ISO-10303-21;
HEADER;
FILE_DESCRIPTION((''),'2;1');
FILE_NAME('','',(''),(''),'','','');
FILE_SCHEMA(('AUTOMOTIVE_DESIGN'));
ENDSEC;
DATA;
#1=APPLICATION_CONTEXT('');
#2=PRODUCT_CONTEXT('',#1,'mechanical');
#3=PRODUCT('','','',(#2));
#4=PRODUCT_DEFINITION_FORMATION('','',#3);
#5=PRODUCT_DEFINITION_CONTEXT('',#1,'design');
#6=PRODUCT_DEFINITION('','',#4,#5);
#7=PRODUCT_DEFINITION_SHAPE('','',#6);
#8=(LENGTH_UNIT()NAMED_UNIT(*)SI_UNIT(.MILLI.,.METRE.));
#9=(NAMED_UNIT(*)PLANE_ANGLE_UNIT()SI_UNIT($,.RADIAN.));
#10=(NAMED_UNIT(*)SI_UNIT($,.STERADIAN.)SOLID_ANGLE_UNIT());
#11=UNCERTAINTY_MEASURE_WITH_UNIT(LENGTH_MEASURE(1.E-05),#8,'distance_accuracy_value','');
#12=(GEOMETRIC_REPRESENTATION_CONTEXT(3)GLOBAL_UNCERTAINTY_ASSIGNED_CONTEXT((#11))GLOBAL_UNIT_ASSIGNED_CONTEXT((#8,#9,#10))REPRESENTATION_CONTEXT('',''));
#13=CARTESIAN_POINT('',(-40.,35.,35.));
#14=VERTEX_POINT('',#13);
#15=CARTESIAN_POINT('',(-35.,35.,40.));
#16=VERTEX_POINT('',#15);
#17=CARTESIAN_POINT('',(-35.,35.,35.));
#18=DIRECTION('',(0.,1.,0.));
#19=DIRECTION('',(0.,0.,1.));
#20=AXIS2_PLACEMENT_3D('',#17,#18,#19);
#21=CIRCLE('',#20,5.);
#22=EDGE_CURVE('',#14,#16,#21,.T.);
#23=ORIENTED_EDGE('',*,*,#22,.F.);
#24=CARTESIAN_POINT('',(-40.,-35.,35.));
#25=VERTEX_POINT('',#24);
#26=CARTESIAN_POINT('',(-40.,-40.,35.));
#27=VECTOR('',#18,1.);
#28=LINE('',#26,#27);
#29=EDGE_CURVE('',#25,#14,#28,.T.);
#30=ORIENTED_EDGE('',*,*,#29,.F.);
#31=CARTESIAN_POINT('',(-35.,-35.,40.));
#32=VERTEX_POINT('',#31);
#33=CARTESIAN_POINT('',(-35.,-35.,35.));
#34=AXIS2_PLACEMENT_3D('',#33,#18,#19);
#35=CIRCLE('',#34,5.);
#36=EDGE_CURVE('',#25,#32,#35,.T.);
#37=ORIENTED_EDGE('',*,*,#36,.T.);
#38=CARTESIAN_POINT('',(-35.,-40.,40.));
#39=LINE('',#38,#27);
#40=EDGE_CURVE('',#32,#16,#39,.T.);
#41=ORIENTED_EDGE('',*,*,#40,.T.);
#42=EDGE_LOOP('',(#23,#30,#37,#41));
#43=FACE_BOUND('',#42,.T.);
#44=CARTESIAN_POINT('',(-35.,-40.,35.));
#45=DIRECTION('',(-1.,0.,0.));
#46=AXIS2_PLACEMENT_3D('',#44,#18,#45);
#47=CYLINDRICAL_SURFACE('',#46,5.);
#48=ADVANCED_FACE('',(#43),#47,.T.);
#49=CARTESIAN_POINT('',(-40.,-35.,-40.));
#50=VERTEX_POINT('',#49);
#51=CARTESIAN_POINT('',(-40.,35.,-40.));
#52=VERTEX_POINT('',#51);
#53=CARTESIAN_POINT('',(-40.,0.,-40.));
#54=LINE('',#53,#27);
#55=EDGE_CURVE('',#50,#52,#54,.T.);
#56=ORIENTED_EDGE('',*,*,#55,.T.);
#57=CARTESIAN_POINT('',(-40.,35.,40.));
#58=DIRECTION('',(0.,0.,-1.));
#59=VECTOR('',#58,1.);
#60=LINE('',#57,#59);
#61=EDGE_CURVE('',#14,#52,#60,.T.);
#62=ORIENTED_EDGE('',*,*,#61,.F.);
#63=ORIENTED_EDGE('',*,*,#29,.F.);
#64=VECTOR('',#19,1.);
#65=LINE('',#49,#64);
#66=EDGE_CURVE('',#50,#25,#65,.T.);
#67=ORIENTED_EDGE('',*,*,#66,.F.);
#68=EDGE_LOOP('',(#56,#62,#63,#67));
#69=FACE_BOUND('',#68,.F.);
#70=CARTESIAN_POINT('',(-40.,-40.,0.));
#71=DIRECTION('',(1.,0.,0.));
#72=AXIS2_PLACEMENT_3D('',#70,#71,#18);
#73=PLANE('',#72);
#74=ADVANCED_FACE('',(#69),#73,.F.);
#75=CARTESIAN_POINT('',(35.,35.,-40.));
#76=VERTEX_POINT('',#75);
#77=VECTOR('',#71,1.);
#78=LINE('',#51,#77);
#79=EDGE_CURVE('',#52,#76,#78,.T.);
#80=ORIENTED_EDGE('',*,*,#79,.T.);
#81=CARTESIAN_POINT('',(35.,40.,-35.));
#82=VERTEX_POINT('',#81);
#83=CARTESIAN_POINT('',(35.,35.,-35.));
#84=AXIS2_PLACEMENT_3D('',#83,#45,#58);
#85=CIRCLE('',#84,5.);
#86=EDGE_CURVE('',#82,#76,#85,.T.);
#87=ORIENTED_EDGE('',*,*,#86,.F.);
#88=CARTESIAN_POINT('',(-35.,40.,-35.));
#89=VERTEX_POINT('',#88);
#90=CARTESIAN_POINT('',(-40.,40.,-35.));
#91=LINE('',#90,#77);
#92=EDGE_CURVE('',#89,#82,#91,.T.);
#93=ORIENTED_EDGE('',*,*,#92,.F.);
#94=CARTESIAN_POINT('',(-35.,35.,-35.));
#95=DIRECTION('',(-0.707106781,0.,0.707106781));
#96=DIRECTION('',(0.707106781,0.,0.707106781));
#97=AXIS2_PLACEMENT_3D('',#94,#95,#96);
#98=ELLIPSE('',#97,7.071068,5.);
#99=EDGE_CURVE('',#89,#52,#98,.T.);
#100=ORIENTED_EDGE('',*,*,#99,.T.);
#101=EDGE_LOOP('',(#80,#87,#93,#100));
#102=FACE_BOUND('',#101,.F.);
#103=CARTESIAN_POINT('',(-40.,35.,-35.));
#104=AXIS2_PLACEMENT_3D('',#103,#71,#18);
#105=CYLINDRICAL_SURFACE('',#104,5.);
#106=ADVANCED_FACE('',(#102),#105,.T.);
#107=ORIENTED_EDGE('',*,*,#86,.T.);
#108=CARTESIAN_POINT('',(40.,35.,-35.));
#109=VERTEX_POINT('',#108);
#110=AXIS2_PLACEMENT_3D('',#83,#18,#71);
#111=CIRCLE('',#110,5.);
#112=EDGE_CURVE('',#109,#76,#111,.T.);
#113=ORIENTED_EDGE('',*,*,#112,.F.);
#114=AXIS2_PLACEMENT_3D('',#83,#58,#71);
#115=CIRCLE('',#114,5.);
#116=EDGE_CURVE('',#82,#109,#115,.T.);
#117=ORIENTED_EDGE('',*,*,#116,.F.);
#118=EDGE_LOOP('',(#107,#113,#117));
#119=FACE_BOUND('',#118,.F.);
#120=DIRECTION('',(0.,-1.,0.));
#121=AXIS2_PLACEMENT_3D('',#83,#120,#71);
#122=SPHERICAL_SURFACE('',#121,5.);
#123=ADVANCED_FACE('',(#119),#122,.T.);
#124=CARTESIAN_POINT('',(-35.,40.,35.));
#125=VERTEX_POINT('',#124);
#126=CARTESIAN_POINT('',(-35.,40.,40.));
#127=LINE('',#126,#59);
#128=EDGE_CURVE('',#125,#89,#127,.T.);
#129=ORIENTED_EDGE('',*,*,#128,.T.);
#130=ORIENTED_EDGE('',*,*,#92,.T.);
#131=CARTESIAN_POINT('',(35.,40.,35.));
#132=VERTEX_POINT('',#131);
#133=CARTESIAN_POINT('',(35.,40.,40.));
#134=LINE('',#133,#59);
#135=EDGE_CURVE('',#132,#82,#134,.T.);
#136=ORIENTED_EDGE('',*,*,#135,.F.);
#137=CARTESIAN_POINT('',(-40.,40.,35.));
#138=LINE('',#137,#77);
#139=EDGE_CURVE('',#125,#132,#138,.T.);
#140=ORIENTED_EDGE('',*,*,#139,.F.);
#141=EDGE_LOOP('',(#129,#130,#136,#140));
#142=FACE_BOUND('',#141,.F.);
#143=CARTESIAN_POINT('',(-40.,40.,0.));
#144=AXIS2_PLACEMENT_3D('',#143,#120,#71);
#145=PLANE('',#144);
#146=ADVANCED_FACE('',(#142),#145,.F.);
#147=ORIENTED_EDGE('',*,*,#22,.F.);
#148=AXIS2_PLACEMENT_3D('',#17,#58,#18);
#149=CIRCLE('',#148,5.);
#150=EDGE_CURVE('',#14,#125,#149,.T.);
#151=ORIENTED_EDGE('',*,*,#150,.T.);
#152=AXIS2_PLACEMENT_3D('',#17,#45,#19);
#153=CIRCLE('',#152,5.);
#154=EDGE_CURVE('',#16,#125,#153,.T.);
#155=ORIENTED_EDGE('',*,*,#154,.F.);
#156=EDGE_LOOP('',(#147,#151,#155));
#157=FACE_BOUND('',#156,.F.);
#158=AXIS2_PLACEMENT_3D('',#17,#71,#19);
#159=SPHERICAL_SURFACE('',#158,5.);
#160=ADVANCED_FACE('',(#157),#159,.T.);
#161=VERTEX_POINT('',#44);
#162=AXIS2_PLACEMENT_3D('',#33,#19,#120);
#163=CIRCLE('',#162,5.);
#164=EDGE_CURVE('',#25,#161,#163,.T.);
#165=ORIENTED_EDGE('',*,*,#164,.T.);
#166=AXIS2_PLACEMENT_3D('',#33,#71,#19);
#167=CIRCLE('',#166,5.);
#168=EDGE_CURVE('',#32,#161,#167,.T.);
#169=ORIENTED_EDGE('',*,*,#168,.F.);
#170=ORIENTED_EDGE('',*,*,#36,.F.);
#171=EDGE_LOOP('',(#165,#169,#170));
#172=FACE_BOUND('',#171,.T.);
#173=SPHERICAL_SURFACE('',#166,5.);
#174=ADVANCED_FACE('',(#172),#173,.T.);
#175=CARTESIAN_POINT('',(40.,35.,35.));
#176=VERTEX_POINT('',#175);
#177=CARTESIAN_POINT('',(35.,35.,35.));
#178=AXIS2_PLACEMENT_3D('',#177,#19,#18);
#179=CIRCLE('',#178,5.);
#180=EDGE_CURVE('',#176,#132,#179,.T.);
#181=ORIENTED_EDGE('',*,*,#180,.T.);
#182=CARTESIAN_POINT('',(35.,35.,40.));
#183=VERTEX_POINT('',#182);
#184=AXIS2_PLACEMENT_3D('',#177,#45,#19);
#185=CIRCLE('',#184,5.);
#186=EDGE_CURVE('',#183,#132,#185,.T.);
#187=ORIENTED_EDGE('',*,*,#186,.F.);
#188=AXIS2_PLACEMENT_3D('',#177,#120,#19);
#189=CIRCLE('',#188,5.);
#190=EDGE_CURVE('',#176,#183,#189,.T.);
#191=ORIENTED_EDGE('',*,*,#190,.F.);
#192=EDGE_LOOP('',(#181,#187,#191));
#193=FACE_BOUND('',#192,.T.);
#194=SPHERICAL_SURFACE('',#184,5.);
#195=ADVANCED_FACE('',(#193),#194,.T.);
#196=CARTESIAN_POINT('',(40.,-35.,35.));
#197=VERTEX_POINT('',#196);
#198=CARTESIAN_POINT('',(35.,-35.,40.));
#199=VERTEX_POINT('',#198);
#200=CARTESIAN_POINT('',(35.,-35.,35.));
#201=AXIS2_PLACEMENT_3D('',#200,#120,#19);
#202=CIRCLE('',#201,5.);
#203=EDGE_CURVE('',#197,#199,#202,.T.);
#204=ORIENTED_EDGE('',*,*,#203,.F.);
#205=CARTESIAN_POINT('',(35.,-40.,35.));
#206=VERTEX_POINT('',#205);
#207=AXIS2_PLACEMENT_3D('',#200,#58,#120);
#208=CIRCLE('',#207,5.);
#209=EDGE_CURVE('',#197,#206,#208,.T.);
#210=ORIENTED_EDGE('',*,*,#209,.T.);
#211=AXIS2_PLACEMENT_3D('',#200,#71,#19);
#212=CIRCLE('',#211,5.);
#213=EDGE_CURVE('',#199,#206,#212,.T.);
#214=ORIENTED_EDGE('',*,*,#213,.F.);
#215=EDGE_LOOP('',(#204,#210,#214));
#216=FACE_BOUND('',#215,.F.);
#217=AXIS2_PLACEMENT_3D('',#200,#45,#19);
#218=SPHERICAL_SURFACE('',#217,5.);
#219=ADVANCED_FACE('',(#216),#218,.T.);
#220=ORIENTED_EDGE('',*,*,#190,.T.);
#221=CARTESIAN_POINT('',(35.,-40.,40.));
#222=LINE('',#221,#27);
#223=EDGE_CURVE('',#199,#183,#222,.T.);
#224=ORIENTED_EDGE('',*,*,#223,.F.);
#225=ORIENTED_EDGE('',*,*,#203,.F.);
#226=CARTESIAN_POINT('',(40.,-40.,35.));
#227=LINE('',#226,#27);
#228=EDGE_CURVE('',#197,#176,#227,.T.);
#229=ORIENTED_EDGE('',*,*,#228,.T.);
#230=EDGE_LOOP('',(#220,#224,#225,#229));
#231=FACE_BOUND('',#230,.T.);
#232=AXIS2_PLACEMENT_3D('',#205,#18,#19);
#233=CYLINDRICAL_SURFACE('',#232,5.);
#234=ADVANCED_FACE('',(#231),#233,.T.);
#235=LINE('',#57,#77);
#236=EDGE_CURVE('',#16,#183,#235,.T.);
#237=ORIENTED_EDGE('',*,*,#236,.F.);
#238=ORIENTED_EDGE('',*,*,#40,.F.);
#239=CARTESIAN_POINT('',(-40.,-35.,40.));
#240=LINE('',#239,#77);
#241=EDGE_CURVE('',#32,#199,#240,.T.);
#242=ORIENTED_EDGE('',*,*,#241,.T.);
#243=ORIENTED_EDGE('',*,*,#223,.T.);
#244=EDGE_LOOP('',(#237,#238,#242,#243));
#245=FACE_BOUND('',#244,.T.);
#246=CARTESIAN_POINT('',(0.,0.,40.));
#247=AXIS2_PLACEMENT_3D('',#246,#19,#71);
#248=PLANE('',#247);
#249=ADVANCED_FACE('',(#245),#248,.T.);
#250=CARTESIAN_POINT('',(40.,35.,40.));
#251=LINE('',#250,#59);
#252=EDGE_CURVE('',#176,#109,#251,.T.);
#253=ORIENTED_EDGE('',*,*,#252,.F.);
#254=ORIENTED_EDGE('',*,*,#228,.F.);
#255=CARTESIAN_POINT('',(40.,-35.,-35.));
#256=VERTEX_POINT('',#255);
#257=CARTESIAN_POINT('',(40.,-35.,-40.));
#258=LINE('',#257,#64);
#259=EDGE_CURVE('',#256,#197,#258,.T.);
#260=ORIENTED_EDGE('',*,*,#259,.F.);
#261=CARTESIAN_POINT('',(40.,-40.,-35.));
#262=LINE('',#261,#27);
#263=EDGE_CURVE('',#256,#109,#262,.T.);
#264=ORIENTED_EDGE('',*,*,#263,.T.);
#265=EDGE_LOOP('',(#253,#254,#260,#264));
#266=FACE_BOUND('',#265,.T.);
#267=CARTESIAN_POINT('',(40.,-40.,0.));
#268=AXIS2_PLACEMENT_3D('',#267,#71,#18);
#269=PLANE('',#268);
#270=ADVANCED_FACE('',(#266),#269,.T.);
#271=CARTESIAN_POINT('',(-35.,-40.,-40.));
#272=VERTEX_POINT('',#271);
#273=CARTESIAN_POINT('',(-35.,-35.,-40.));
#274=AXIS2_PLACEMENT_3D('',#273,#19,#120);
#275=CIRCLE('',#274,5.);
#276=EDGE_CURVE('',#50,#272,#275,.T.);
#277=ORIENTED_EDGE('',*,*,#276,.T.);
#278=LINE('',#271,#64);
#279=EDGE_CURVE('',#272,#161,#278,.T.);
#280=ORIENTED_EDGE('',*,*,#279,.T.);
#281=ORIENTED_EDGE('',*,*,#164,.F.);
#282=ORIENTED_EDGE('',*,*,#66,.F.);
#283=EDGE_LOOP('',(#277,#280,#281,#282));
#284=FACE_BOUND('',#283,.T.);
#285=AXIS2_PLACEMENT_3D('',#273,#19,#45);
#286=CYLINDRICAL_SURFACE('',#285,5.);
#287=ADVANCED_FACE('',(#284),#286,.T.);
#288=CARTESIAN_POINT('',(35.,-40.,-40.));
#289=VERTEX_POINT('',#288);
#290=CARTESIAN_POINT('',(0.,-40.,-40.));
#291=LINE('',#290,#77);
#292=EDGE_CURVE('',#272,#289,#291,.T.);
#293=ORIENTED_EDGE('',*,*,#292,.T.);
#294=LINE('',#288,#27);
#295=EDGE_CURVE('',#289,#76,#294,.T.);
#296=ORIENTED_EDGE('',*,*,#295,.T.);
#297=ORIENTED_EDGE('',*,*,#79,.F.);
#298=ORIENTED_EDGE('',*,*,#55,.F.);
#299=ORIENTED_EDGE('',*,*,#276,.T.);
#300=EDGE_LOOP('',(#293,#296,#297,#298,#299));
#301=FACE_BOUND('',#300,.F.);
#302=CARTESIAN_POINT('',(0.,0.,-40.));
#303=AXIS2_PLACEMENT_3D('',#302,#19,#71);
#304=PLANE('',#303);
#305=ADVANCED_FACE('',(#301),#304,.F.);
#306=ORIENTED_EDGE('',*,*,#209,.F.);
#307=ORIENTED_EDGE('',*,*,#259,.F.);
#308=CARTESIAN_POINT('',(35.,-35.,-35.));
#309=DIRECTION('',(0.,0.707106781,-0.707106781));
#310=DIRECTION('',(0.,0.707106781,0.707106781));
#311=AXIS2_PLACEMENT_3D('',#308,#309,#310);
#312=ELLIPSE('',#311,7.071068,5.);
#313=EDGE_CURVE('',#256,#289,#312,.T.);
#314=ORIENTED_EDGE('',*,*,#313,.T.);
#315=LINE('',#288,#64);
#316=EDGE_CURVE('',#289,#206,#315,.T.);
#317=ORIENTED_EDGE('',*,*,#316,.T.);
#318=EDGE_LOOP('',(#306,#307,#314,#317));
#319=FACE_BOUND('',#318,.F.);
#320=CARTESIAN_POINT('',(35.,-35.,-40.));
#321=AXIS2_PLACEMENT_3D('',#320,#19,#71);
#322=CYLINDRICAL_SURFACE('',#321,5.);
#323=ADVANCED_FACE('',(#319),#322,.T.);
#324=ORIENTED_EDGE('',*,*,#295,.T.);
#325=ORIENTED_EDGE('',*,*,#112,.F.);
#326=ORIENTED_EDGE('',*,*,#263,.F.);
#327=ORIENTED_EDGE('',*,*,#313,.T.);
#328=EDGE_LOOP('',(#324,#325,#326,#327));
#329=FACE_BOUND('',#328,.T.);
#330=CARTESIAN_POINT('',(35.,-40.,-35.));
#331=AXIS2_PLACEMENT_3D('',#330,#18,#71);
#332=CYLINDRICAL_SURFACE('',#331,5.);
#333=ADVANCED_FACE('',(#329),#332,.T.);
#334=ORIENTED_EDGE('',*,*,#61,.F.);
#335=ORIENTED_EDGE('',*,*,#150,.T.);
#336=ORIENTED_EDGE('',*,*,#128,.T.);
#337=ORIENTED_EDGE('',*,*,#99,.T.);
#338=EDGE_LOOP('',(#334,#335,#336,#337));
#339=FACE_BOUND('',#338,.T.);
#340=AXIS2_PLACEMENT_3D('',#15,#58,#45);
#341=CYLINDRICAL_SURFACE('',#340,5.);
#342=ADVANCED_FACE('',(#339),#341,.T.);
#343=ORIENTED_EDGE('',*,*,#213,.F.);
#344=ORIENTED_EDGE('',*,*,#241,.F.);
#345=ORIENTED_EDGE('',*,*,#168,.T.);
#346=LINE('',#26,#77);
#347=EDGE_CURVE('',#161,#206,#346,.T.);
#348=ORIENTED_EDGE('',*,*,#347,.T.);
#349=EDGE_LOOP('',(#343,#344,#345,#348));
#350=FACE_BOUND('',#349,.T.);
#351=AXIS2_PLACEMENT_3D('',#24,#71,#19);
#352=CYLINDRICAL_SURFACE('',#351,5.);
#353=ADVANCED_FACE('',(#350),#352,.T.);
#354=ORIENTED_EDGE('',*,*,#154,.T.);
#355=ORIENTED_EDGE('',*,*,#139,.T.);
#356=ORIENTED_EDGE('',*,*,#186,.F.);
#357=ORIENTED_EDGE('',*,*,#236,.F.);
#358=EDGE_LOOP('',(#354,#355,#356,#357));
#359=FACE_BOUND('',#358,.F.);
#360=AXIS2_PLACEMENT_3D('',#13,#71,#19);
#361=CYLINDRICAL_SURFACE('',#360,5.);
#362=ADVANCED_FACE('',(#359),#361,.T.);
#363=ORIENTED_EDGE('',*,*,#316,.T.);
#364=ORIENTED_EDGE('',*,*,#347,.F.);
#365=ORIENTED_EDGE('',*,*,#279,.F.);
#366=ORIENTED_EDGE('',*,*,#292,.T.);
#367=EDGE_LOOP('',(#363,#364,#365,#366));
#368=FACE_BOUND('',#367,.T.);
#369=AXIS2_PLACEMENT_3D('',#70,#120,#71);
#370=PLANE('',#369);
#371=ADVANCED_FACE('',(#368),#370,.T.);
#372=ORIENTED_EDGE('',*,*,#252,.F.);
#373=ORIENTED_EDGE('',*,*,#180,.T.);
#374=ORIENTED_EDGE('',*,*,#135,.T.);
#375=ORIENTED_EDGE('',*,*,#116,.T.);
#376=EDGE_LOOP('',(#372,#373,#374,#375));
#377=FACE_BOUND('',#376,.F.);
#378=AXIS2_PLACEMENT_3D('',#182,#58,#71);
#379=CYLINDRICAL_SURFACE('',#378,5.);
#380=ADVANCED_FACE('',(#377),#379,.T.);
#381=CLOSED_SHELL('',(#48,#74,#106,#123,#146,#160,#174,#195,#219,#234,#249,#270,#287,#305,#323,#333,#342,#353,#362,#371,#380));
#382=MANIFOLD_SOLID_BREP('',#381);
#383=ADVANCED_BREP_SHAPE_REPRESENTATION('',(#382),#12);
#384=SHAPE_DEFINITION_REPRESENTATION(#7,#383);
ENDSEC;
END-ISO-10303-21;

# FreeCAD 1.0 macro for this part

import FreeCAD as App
import Part
import Sketcher


def edges_at(feature, points):
    """Names of the edges that pass closest to the given points."""
    edges = feature.Shape.Edges
    near = lambda p: min(range(len(edges)), key=lambda i: edges[i].distToShape(Part.Vertex(*p))[0])
    return sorted({f"Edge{near(p) + 1}" for p in points})

doc = App.newDocument("Part")
params = doc.addObject("Spreadsheet::Sheet", "Params")
for row, (alias, value) in enumerate([
    ("sketch1_width", "80 mm"),
    ("pad1_length", "80 mm"),
    ("fillet_radius", "5 mm"),
], start=1):
    params.set(f"A{row}", alias)
    params.set(f"B{row}", "=" + value)
    params.setAlias(f"B{row}", alias)

body = doc.addObject("PartDesign::Body", "Body")

sketch1 = body.newObject("Sketcher::SketchObject", "Sketch")
sketch1.AttachmentSupport = (doc.getObject("XY_Plane"), [""])
sketch1.MapMode = "FlatFace"
sketch1.addGeometry(Part.LineSegment(App.Vector(-40, 40, 0), App.Vector(-40, -40, 0)), False)
sketch1.addGeometry(Part.LineSegment(App.Vector(-40, -40, 0), App.Vector(40, -40, 0)), False)
sketch1.addGeometry(Part.LineSegment(App.Vector(40, -40, 0), App.Vector(40, 40, 0)), False)
sketch1.addGeometry(Part.LineSegment(App.Vector(40, 40, 0), App.Vector(-40, 40, 0)), False)
sketch1.addConstraint(Sketcher.Constraint("Coincident", 0, 2, 1, 1))
sketch1.addConstraint(Sketcher.Constraint("Coincident", 1, 2, 2, 1))
sketch1.addConstraint(Sketcher.Constraint("Coincident", 2, 2, 3, 1))
sketch1.addConstraint(Sketcher.Constraint("Coincident", 3, 2, 0, 1))
sketch1.addConstraint(Sketcher.Constraint("Vertical", 0))
sketch1.addConstraint(Sketcher.Constraint("Horizontal", 1))
sketch1.addConstraint(Sketcher.Constraint("Vertical", 2))
sketch1.addConstraint(Sketcher.Constraint("Horizontal", 3))
sketch1.addConstraint(Sketcher.Constraint("Symmetric", 0, 2, 2, 2, -1, 1))
sketch1.addConstraint(Sketcher.Constraint("Equal", 3, 0))
sketch1.addConstraint(Sketcher.Constraint("DistanceX", 1, 1, 1, 2, 80.0))
sketch1.setExpression("Constraints[10]", "Params.sketch1_width")
pad1 = body.newObject("PartDesign::Pad", "Pad")
pad1.Profile = sketch1
pad1.setExpression("Length", "Params.pad1_length")
pad1.Midplane = True
doc.recompute()

fillet = body.newObject("PartDesign::Fillet", "Fillet")
fillet.Base = (pad1, edges_at(pad1, [
    (0, -40, 40),
    (0, 40, 40),
    (-40, 0, 40),
    (40, 0, 40),
    (40, 0, -40),
    (40, 40, 0),
    (40, -40, 0),
    (0, 40, -40),
    (-40, 40, 0),
    (-40, -40, 0),
]))
fillet.setExpression("Radius", "Params.fillet_radius")

doc.recompute()
